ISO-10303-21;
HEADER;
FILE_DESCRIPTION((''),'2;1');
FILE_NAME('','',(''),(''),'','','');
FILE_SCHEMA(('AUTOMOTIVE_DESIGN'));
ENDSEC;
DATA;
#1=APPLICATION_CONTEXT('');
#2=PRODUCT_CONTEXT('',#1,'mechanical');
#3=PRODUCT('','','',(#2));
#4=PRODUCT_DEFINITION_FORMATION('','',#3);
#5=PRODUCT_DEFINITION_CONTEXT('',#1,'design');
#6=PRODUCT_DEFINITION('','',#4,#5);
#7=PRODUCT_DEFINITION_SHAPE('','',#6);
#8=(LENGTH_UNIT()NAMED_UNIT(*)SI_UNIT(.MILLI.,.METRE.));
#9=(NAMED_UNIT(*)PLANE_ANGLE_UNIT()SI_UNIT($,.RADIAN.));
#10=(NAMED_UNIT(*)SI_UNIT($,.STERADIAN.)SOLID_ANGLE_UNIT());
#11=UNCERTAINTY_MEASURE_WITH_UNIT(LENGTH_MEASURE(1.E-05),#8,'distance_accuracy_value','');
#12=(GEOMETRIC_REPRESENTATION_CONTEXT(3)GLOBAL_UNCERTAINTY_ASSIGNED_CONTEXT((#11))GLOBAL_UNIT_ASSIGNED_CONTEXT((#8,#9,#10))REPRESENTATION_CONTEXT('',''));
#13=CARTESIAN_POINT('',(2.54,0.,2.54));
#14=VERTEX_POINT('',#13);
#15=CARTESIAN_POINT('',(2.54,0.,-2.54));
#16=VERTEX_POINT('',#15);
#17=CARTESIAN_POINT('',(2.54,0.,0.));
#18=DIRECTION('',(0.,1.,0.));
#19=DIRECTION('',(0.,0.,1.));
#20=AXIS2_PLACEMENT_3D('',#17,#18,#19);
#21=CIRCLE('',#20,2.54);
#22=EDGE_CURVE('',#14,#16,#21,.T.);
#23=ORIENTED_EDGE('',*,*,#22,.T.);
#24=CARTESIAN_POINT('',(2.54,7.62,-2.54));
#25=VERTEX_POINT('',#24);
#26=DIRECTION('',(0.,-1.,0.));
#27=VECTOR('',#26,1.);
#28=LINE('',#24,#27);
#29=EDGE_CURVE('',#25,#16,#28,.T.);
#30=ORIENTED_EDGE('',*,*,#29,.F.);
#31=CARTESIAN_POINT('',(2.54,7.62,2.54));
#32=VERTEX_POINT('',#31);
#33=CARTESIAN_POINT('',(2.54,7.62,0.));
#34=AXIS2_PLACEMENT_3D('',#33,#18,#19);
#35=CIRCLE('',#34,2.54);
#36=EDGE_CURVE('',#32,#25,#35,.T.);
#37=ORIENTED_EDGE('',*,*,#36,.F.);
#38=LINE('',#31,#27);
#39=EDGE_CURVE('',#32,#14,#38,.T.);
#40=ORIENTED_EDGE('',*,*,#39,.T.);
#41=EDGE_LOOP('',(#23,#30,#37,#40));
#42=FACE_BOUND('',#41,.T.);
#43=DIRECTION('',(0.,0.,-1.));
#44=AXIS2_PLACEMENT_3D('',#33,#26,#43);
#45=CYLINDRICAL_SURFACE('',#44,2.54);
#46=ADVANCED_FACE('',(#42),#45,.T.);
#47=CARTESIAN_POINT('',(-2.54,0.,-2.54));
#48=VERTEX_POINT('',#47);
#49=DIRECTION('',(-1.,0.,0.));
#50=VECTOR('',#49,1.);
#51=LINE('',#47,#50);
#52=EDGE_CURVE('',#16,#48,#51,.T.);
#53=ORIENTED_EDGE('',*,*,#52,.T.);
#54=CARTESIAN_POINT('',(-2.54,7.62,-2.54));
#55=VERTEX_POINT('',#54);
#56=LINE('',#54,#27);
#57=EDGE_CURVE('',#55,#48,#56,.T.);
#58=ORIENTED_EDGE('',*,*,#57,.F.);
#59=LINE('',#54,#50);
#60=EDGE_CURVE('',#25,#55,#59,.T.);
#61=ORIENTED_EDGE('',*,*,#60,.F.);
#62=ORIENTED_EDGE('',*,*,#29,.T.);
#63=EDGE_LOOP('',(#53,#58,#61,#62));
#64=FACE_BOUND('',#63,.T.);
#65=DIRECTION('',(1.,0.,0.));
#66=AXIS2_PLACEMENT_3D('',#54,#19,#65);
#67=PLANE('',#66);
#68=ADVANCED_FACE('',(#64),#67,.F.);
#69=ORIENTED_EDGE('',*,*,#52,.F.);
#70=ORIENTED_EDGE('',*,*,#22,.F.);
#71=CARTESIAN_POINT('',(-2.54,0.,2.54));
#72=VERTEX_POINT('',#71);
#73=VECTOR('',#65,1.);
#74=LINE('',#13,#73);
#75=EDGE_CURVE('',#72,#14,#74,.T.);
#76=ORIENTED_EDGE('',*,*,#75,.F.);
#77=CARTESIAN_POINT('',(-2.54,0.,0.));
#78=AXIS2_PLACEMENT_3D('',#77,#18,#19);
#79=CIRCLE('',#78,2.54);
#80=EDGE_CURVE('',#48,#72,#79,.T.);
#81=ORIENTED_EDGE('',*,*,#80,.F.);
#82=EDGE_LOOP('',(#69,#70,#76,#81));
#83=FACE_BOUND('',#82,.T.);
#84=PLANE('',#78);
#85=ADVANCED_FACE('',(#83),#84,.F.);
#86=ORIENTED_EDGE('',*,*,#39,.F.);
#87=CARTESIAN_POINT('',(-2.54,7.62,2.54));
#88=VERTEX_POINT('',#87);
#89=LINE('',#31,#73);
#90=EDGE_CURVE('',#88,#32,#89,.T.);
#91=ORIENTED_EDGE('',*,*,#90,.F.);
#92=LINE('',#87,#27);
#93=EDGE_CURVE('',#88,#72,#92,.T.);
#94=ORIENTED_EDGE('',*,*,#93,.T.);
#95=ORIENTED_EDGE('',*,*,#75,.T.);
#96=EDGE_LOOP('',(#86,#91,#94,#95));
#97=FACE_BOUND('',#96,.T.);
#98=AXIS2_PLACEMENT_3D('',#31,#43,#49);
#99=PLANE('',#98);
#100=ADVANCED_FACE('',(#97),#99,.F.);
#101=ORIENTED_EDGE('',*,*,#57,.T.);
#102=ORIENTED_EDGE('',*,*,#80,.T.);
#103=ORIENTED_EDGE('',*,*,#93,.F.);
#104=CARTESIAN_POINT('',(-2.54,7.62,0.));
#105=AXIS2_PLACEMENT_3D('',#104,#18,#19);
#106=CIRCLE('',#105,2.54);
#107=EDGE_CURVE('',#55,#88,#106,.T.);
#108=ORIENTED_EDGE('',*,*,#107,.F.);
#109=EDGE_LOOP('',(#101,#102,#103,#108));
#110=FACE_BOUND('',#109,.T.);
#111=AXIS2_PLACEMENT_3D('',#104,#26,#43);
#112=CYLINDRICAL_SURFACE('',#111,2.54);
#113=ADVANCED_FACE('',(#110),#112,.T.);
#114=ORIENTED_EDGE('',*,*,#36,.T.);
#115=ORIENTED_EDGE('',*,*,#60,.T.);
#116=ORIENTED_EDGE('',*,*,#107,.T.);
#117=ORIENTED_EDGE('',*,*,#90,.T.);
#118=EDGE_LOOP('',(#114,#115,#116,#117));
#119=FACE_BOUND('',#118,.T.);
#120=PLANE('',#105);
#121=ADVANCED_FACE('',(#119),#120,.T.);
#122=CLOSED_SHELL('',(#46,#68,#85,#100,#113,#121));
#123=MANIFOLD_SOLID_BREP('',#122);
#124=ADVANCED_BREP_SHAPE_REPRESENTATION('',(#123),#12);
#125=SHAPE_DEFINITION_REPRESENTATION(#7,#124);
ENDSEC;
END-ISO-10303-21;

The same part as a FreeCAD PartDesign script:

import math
import FreeCAD as App
import Part
import Sketcher
from FreeCAD import Vector
Q = App.Units.Quantity

doc = App.newDocument("Part")
params = doc.addObject("Spreadsheet::Sheet", "Params")
for row, (alias, value) in enumerate([
    ("sketch1_radius", "0.1 in"),
    ("sketch1_width", "0.2 in"),
    ("pad1_length", "0.3 in"),
], start=1):
    params.set(f"A{row}", alias)
    params.set(f"B{row}", "=" + value)
    params.setAlias(f"B{row}", alias)

body = doc.addObject("PartDesign::Body", "Body")

sketch1 = body.newObject("Sketcher::SketchObject", "Sketch")
sketch1.AttachmentSupport = (doc.getObject("XZ_Plane"), [""])
sketch1.MapMode = "FlatFace"
sketch1.addGeometry(Part.LineSegment(Vector(2.54, -2.54, 0), Vector(-2.54, -2.54, 0)), False)
sketch1.addGeometry(Part.ArcOfCircle(Part.Circle(Vector(-2.54, 0, 0), Vector(0, 0, 1), 2.54), math.radians(90), math.radians(270)), False)
sketch1.addGeometry(Part.LineSegment(Vector(-2.54, 2.54, 0), Vector(2.54, 2.54, 0)), False)
sketch1.addGeometry(Part.ArcOfCircle(Part.Circle(Vector(2.54, 0, 0), Vector(0, 0, 1), 2.54), math.radians(-90), math.radians(90)), False)
sketch1.addConstraint(Sketcher.Constraint("Tangent", 0, 2, 1, 2))
sketch1.addConstraint(Sketcher.Constraint("Tangent", 1, 1, 2, 1))
sketch1.addConstraint(Sketcher.Constraint("Tangent", 2, 2, 3, 2))
sketch1.addConstraint(Sketcher.Constraint("Tangent", 3, 1, 0, 1))
sketch1.addConstraint(Sketcher.Constraint("Horizontal", 0))
sketch1.addConstraint(Sketcher.Constraint("Horizontal", 2))
sketch1.addConstraint(Sketcher.Constraint("Symmetric", 1, 3, 3, 3, -1, 1))
sketch1.addConstraint(Sketcher.Constraint("Radius", 1, Q("0.1 in")))
sketch1.addConstraint(Sketcher.Constraint("DistanceX", 0, 2, 0, 1, Q("0.2 in")))
sketch1.setExpression("Constraints[7]", "Params.sketch1_radius")
sketch1.setExpression("Constraints[8]", "Params.sketch1_width")
pad1 = body.newObject("PartDesign::Pad", "Pad")
pad1.Profile = sketch1
pad1.setExpression("Length", "Params.pad1_length")
pad1.Reversed = True

doc.recompute()
